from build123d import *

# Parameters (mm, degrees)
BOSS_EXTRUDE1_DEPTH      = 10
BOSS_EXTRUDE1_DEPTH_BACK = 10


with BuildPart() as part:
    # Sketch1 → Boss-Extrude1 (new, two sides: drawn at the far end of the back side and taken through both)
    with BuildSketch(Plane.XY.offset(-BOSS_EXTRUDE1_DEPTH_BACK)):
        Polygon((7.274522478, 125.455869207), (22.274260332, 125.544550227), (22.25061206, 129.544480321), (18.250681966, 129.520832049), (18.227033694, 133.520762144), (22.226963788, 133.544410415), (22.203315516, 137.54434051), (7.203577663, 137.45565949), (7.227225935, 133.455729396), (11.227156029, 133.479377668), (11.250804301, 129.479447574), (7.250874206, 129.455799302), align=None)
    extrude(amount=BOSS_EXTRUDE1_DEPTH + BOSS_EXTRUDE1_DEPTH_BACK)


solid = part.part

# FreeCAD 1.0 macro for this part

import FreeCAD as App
import Part
import Sketcher
Q = App.Units.Quantity


def add_polygon(sketch, points):
    """Adds a closed chain of lines whose ends are joined by coincident constraints."""
    first, n = sketch.GeometryCount, len(points)
    for a, b in zip(points, points[1:] + points[:1]):
        sketch.addGeometry(Part.LineSegment(App.Vector(*a, 0), App.Vector(*b, 0)), False)
    for i in range(n):
        sketch.addConstraint(Sketcher.Constraint("Coincident", first + i, 2, first + (i + 1) % n, 1))

doc = App.newDocument("Part")
body = doc.addObject("PartDesign::Body", "Body")

# Sketch on XY plane
sketch1 = body.newObject("Sketcher::SketchObject", "Sketch")
sketch1.AttachmentSupport = (doc.getObject("XY_Plane"), [""])
sketch1.MapMode = "FlatFace"
add_polygon(sketch1, [(7.3, 125.5), (22.3, 125.5), (22.3, 129.5), (18.3, 129.5), (18.2, 133.5), (22.2, 133.5), (22.2, 137.5), (7.2, 137.5), (7.2, 133.5), (11.2, 133.5), (11.3, 129.5), (7.3, 129.5)])  # lines 0-11
sketch1.addConstraint(Sketcher.Constraint("Perpendicular", 0, 1))
sketch1.addConstraint(Sketcher.Constraint("Perpendicular", 1, 2))
sketch1.addConstraint(Sketcher.Constraint("Perpendicular", 2, 3))
sketch1.addConstraint(Sketcher.Constraint("Perpendicular", 3, 4))
sketch1.addConstraint(Sketcher.Constraint("Perpendicular", 4, 5))
sketch1.addConstraint(Sketcher.Constraint("Perpendicular", 5, 6))
sketch1.addConstraint(Sketcher.Constraint("Perpendicular", 6, 7))
sketch1.addConstraint(Sketcher.Constraint("Perpendicular", 7, 8))
sketch1.addConstraint(Sketcher.Constraint("Perpendicular", 8, 9))
sketch1.addConstraint(Sketcher.Constraint("Perpendicular", 9, 10))
sketch1.addConstraint(Sketcher.Constraint("Perpendicular", 10, 11))
sketch1.addConstraint(Sketcher.Constraint("Equal", 1, 2))
sketch1.addConstraint(Sketcher.Constraint("Equal", 2, 3))
sketch1.addConstraint(Sketcher.Constraint("Equal", 3, 4))
sketch1.addConstraint(Sketcher.Constraint("Equal", 4, 5))
sketch1.addConstraint(Sketcher.Constraint("Equal", 0, 6))
sketch1.addConstraint(Sketcher.Constraint("Equal", 5, 7))
sketch1.addConstraint(Sketcher.Constraint("Equal", 7, 8))
sketch1.addConstraint(Sketcher.Constraint("Equal", 8, 9))
sketch1.addConstraint(Sketcher.Constraint("Distance", 0, Q("15 mm")))
sketch1.addConstraint(Sketcher.Constraint("Distance", 1, Q("4 mm")))
sketch1.addConstraint(Sketcher.Constraint("DistanceY", -1, 1, 10, 2, Q("129.455799 mm")))
sketch1.addConstraint(Sketcher.Constraint("DistanceX", -1, 1, 0, 2, Q("22.27426 mm")))
sketch1.addConstraint(Sketcher.Constraint("DistanceY", -1, 1, 0, 2, Q("125.54455 mm")))
pad1 = body.newObject("PartDesign::Pad", "Pad")
pad1.Profile = sketch1
pad1.Type = "TwoLengths"
pad1.Length = 10
pad1.Length2 = 10

doc.recompute()
